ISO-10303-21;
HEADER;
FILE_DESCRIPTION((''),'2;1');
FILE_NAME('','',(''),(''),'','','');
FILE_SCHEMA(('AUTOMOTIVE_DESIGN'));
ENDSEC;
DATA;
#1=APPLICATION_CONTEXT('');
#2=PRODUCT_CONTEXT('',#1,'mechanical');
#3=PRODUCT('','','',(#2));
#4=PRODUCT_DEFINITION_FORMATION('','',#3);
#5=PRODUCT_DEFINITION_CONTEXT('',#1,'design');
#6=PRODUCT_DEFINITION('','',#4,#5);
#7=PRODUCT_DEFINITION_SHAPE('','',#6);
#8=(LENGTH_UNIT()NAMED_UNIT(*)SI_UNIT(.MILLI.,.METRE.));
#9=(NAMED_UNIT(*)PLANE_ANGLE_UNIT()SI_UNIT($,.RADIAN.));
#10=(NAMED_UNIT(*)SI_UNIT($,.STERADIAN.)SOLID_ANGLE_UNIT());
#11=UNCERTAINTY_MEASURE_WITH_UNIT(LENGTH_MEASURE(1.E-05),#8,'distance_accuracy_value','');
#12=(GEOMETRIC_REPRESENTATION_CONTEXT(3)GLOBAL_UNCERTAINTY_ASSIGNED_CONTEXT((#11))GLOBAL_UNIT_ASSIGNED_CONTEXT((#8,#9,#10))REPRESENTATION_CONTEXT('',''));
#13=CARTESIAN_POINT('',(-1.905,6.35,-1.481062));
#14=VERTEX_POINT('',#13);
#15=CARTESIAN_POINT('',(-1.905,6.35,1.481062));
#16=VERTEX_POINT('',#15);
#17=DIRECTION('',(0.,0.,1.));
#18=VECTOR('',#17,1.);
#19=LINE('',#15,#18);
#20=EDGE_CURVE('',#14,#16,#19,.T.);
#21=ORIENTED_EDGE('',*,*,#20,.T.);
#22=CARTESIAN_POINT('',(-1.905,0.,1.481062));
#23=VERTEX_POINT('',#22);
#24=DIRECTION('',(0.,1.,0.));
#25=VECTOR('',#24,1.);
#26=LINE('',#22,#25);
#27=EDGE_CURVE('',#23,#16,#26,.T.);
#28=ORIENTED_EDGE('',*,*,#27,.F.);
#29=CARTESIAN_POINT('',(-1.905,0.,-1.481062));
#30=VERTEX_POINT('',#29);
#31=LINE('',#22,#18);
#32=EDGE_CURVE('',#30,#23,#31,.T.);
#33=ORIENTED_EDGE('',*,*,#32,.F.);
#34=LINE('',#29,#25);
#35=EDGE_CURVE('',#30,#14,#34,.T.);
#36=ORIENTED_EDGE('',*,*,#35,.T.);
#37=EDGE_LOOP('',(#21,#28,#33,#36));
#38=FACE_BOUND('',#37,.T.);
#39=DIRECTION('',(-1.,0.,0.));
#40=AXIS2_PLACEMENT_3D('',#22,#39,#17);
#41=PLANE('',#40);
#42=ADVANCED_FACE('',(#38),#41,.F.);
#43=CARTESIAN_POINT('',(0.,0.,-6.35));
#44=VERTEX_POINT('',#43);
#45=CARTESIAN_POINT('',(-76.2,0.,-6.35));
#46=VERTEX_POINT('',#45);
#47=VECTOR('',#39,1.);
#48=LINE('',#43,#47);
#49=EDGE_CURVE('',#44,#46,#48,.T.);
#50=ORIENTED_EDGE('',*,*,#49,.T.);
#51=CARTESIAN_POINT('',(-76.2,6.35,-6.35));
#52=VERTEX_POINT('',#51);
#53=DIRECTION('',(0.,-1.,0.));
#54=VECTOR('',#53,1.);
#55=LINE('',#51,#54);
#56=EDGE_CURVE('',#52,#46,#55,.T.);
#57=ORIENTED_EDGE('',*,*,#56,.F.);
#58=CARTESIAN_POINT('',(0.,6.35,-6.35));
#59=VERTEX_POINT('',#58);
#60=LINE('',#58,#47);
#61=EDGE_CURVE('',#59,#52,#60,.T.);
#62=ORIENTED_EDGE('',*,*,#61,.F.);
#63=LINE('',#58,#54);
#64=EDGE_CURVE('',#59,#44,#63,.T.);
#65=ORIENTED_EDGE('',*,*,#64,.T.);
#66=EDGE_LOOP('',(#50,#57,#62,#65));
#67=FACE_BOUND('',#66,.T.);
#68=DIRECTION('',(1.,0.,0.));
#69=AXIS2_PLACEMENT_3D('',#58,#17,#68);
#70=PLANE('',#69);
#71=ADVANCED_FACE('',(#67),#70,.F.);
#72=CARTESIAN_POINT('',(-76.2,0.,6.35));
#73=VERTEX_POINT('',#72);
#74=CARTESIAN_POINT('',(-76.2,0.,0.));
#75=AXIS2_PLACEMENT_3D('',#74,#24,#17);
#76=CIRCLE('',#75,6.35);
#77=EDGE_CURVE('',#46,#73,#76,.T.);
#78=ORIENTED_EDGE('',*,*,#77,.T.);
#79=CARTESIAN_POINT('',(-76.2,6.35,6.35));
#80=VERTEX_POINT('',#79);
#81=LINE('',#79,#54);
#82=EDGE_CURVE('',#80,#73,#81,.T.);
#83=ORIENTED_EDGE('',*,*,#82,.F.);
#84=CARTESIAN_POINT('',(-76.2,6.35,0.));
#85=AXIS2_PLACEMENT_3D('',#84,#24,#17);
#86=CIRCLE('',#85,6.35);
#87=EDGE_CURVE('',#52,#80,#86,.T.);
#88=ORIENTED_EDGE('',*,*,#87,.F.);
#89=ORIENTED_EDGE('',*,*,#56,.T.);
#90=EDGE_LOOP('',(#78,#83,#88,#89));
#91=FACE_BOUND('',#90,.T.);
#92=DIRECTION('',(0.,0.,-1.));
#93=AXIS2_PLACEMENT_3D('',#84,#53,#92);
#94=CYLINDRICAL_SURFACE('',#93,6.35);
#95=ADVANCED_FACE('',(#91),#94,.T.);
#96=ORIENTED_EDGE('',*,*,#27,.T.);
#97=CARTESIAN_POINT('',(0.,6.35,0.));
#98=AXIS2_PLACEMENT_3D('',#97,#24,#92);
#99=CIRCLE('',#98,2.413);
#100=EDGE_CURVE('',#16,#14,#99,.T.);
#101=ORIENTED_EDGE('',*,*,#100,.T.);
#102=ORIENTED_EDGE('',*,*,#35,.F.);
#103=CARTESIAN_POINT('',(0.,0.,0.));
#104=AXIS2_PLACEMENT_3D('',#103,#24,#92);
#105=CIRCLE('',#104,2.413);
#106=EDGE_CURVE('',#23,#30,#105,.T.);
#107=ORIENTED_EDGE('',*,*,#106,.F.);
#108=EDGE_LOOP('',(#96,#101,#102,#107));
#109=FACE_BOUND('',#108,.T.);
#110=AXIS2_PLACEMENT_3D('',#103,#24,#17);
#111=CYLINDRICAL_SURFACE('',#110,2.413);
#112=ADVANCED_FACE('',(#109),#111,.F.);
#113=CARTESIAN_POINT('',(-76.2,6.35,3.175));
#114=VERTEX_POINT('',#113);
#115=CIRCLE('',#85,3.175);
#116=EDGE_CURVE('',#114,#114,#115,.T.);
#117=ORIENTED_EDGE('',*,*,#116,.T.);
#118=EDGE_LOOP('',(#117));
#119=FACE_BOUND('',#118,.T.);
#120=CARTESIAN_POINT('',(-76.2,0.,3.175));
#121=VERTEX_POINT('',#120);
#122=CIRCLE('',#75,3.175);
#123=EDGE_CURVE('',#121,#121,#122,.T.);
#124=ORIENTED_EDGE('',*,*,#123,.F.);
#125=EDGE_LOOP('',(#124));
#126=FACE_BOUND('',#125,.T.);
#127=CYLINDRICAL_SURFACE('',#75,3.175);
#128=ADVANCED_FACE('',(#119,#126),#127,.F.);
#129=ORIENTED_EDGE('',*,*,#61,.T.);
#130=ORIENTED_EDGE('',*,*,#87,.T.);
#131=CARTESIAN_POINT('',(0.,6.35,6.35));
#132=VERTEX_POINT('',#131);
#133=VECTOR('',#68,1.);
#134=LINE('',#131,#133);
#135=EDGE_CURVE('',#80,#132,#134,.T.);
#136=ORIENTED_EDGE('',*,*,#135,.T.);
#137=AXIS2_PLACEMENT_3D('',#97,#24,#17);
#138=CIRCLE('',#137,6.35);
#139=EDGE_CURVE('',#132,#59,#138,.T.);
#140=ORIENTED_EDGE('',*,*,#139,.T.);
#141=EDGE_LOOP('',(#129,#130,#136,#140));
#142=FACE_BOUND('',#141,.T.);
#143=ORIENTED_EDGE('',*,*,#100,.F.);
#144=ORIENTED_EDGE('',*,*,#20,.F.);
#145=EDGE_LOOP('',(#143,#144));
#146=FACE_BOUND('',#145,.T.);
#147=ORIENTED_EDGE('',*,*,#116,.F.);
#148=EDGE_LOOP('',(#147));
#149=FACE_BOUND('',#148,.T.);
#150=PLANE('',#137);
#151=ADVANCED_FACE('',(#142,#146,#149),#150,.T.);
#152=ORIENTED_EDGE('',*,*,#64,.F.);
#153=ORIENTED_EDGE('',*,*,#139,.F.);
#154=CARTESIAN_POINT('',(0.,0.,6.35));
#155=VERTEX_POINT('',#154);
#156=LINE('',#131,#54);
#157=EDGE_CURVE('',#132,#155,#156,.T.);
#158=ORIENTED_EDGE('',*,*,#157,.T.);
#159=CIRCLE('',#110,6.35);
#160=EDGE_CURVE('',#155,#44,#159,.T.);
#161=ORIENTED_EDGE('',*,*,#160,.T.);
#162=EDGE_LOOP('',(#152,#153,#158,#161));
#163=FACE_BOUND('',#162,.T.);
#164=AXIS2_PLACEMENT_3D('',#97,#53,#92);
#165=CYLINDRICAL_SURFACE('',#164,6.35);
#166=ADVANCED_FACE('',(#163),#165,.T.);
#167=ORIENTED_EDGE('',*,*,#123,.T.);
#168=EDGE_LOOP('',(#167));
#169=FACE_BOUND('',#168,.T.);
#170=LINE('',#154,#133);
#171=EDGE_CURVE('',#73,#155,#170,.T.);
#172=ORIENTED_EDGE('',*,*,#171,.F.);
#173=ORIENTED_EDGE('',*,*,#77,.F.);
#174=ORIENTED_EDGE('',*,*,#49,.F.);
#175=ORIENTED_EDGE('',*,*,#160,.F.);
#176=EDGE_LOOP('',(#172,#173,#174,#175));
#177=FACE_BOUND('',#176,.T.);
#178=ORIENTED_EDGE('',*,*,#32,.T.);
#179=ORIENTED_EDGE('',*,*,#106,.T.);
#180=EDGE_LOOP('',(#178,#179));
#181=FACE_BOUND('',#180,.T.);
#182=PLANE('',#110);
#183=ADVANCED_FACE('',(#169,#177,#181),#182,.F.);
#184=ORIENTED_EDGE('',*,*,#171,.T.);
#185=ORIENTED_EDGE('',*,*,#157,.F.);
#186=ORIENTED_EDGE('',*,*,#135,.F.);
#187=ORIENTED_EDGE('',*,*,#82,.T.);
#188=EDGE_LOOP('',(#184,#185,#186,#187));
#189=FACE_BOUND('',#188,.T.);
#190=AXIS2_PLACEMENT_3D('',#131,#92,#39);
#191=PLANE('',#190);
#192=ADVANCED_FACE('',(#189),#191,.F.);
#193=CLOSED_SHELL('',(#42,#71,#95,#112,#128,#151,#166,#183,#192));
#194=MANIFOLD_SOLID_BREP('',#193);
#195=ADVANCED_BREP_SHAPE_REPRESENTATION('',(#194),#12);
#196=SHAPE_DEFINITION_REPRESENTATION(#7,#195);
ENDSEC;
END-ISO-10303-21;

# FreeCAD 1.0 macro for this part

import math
import FreeCAD as App
import Part
import Sketcher
from FreeCAD import Vector
Q = App.Units.Quantity

doc = App.newDocument("Part")
params = doc.addObject("Spreadsheet::Sheet", "Params")
for row, (alias, value) in enumerate([
    ("sketch1_width", "3 in"),
    ("sketch1_radius", "0.25 in"),
    ("pad1_length", "0.25 in"),
    ("sketch2_radius", "0.095 in"),
    ("sketch3_diameter", "0.25 in"),
], start=1):
    params.set(f"A{row}", alias)
    params.set(f"B{row}", "=" + value)
    params.setAlias(f"B{row}", alias)

body = doc.addObject("PartDesign::Body", "Body")

# Sketch on XZ plane
sketch1 = body.newObject("Sketcher::SketchObject", "Sketch")
sketch1.AttachmentSupport = (doc.getObject("XZ_Plane"), [""])
sketch1.MapMode = "FlatFace"
sketch1.addGeometry(Part.LineSegment(Vector(-76.2, 6.35, 0), Vector(0, 6.35, 0)), False)
sketch1.addGeometry(Part.ArcOfCircle(Part.Circle(Vector(0, 0, 0), Vector(0, 0, 1), 6.35), math.radians(-90), math.radians(90)), False)
sketch1.addGeometry(Part.LineSegment(Vector(0, -6.35, 0), Vector(-76.2, -6.35, 0)), False)
sketch1.addGeometry(Part.ArcOfCircle(Part.Circle(Vector(-76.2, 0, 0), Vector(0, 0, 1), 6.35), math.radians(90), math.radians(270)), False)
sketch1.addConstraint(Sketcher.Constraint("Tangent", 0, 2, 1, 2))
sketch1.addConstraint(Sketcher.Constraint("Tangent", 1, 1, 2, 1))
sketch1.addConstraint(Sketcher.Constraint("Tangent", 2, 2, 3, 2))
sketch1.addConstraint(Sketcher.Constraint("Tangent", 3, 1, 0, 1))
sketch1.addConstraint(Sketcher.Constraint("Horizontal", 0))
sketch1.addConstraint(Sketcher.Constraint("Horizontal", 2))
sketch1.addConstraint(Sketcher.Constraint("Coincident", 1, 3, -1, 1))
sketch1.addConstraint(Sketcher.Constraint("DistanceX", 0, 1, 0, 2, Q("3 in")))
sketch1.addConstraint(Sketcher.Constraint("Radius", 1, Q("0.25 in")))
sketch1.setExpression("Constraints[7]", "Params.sketch1_width")
sketch1.setExpression("Constraints[8]", "Params.sketch1_radius")
pad1 = body.newObject("PartDesign::Pad", "Pad")
pad1.Profile = sketch1
pad1.setExpression("Length", "Params.pad1_length")
pad1.Reversed = True

# Sketch on XZ plane
sketch2 = body.newObject("Sketcher::SketchObject", "Sketch001")
sketch2.AttachmentSupport = (doc.getObject("XZ_Plane"), [""])
sketch2.MapMode = "FlatFace"
sketch2.AttachmentOffset = App.Placement(Vector(0, 0, -0.25 * 25.4), App.Rotation())
sketch2.addGeometry(Part.LineSegment(Vector(-1.905, -1.481062, 0), Vector(-1.905, 1.481062, 0)), False)
sketch2.addGeometry(Part.ArcOfCircle(Part.Circle(Vector(0, 0, 0), Vector(0, 0, 1), 2.413), math.radians(-142.136354), math.radians(142.136354)), False)
sketch2.addConstraint(Sketcher.Constraint("Coincident", 0, 1, 1, 1))
sketch2.addConstraint(Sketcher.Constraint("Coincident", 1, 2, 0, 2))
sketch2.addConstraint(Sketcher.Constraint("Vertical", 0))
sketch2.addConstraint(Sketcher.Constraint("Coincident", 1, 3, -1, 1))
sketch2.addConstraint(Sketcher.Constraint("Radius", 1, Q("0.095 in")))
sketch2.addConstraint(Sketcher.Constraint("DistanceX", 0, 1, -1, 1, Q("0.075 in")))
sketch2.setExpression("Constraints[4]", "Params.sketch2_radius")
pocket1 = body.newObject("PartDesign::Pocket", "Pocket")
pocket1.Profile = sketch2
pocket1.Type = "ThroughAll"
pocket1.Reversed = True

# Sketch on XZ plane
sketch3 = body.newObject("Sketcher::SketchObject", "Sketch002")
sketch3.AttachmentSupport = (doc.getObject("XZ_Plane"), [""])
sketch3.MapMode = "FlatFace"
sketch3.AttachmentOffset = App.Placement(Vector(0, 0, -0.25 * 25.4), App.Rotation())
sketch3.addGeometry(Part.Circle(Vector(-76.2, 0, 0), Vector(0, 0, 1), 3.175), False)
sketch3.addConstraint(Sketcher.Constraint("PointOnObject", 0, 3, -1))
sketch3.addConstraint(Sketcher.Constraint("Diameter", 0, Q("0.25 in")))
sketch3.addConstraint(Sketcher.Constraint("DistanceX", 0, 3, -1, 1, Q("3 in")))
sketch3.setExpression("Constraints[1]", "Params.sketch3_diameter")
pocket2 = body.newObject("PartDesign::Pocket", "Pocket001")
pocket2.Profile = sketch3
pocket2.Type = "ThroughAll"
pocket2.Reversed = True

doc.recompute()
